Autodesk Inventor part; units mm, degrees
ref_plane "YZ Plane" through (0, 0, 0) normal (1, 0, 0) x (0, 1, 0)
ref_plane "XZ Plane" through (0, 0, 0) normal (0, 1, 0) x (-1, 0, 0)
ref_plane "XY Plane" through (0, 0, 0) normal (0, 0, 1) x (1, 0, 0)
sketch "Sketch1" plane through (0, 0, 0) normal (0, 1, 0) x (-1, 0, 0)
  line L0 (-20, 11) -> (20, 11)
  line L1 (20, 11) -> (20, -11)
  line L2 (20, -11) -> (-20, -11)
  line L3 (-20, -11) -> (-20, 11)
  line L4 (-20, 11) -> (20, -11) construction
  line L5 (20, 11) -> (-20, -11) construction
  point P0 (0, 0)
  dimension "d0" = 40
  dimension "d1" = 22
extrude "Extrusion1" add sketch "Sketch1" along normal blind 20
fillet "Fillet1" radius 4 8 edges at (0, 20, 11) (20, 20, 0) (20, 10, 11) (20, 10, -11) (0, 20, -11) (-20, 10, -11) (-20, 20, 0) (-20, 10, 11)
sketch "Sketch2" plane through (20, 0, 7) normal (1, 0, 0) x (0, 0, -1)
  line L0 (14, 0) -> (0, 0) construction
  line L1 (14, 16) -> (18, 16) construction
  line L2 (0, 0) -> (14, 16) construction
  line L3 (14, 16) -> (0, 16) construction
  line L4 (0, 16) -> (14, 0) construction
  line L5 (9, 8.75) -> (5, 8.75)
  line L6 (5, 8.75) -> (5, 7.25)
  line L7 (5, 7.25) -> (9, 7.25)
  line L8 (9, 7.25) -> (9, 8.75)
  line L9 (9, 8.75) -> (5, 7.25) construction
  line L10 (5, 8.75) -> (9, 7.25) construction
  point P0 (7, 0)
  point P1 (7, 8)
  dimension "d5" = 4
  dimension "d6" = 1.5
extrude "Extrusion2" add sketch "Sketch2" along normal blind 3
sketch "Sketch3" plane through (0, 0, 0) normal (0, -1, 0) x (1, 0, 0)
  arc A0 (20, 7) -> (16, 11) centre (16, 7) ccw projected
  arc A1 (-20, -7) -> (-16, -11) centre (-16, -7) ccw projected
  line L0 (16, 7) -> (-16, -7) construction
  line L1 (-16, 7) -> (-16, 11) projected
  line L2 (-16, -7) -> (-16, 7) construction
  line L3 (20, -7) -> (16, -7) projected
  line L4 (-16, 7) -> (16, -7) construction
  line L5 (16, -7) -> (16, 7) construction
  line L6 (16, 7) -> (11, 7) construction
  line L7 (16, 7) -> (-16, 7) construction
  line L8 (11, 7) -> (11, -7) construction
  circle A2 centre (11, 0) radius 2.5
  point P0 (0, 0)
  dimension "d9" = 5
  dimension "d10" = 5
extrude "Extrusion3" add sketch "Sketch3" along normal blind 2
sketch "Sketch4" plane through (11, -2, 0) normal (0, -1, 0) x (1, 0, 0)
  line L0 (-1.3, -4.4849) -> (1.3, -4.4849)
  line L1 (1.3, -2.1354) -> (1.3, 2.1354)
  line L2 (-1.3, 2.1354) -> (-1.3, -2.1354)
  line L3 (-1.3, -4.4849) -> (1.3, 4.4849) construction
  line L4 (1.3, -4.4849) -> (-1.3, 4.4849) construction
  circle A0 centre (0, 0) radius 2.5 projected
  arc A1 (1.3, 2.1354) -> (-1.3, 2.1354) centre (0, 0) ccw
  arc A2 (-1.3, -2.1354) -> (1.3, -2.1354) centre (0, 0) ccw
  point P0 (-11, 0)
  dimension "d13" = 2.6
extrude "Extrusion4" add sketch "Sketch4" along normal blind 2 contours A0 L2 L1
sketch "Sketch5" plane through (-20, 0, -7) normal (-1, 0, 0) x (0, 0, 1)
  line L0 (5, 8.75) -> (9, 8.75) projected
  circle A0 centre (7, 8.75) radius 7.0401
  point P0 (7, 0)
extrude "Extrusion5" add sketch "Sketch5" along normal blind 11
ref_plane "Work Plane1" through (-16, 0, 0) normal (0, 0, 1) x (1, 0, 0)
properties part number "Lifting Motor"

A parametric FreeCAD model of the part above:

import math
import FreeCAD as App
import Part
import Sketcher
from FreeCAD import Vector
Q = App.Units.Quantity


def edges_at(feature, points):
    """Names of the edges that pass closest to the given points."""
    edges = feature.Shape.Edges
    near = lambda p: min(range(len(edges)), key=lambda i: edges[i].distToShape(Part.Vertex(*p))[0])
    return sorted({f"Edge{near(p) + 1}" for p in points})


def add_polygon(sketch, points):
    """Adds a closed chain of lines whose ends are joined by coincident constraints."""
    first, n = sketch.GeometryCount, len(points)
    for a, b in zip(points, points[1:] + points[:1]):
        sketch.addGeometry(Part.LineSegment(App.Vector(*a, 0), App.Vector(*b, 0)), False)
    for i in range(n):
        sketch.addConstraint(Sketcher.Constraint("Coincident", first + i, 2, first + (i + 1) % n, 1))

doc = App.newDocument("Part")
params = doc.addObject("Spreadsheet::Sheet", "Params")
for row, (alias, value) in enumerate([
    ("sketch1_width", "40 mm"),
    ("sketch1_height", "22 mm"),
    ("pad1_length", "20 mm"),
    ("fillet_radius", "4 mm"),
    ("sketch2_height", "4 mm"),
    ("sketch2_width", "1.5 mm"),
    ("pad2_length", "3 mm"),
    ("sketch3_diameter", "5 mm"),
    ("pad3_length", "2 mm"),
    ("sketch4_radius", "2.5 mm"),
    ("pad4_length", "2 mm"),
    ("pad5_length", "11 mm"),
], start=1):
    params.set(f"A{row}", alias)
    params.set(f"B{row}", "=" + value)
    params.setAlias(f"B{row}", alias)

body = doc.addObject("PartDesign::Body", "Body")

# Sketch on XZ plane
sketch1 = doc.addObject("Sketcher::SketchObject", "Sketch")
body.addObject(sketch1)
sketch1.AttachmentSupport = (doc.XZ_Plane, [""])
sketch1.MapMode = "FlatFace"
add_polygon(sketch1, [(-20, 11), (20, 11), (20, -11), (-20, -11)])  # lines 0-3
sketch1.addConstraint([
    Sketcher.Constraint("Horizontal", 0),
    Sketcher.Constraint("Vertical", 1),
    Sketcher.Constraint("Horizontal", 2),
    Sketcher.Constraint("Vertical", 3),
    Sketcher.Constraint("Symmetric", 0, 2, 2, 2, -1, 1),
    Sketcher.Constraint("DistanceX", 0, 1, 0, 2, Q("40 mm")),
    Sketcher.Constraint("DistanceY", 1, 2, 1, 1, Q("22 mm")),
])
sketch1.setExpression("Constraints[9]", "Params.sketch1_width")
sketch1.setExpression("Constraints[10]", "Params.sketch1_height")
pad1 = doc.addObject("PartDesign::Pad", "Pad")
body.addObject(pad1)
pad1.Profile = sketch1
pad1.setExpression("Length", "Params.pad1_length")
pad1.Reversed = True
doc.recompute()

fillet = doc.addObject("PartDesign::Fillet", "Fillet")
body.addObject(fillet)
fillet.Base = (pad1, edges_at(pad1, [
    (0, 20, 11),
    (20, 20, 0),
    (20, 10, 11),
    (20, 10, -11),
    (0, 20, -11),
    (-20, 10, -11),
    (-20, 20, 0),
    (-20, 10, 11),
]))
fillet.setExpression("Radius", "Params.fillet_radius")

# Sketch on YZ plane
sketch2 = doc.addObject("Sketcher::SketchObject", "Sketch001")
body.addObject(sketch2)
sketch2.AttachmentSupport = (doc.YZ_Plane, [""])
sketch2.MapMode = "FlatFace"
sketch2.AttachmentOffset = App.Placement(Vector(0, 0, 20), App.Rotation())
add_polygon(sketch2, [(7.25, -2), (8.75, -2), (8.75, 2), (7.25, 2)])  # lines 0-3
sketch2.addConstraint([
    Sketcher.Constraint("Horizontal", 0),
    Sketcher.Constraint("Vertical", 1),
    Sketcher.Constraint("Horizontal", 2),
    Sketcher.Constraint("Vertical", 3),
    Sketcher.Constraint("DistanceY", 1, 1, 1, 2, Q("4 mm")),
    Sketcher.Constraint("DistanceX", 0, 1, 0, 2, Q("1.5 mm")),
    Sketcher.Constraint("DistanceY", 0, 2, -1, 1, Q("2 mm")),
    Sketcher.Constraint("DistanceX", -1, 1, 0, 2, Q("8.75 mm")),
])
sketch2.setExpression("Constraints[8]", "Params.sketch2_height")
sketch2.setExpression("Constraints[9]", "Params.sketch2_width")
pad2 = doc.addObject("PartDesign::Pad", "Pad001")
body.addObject(pad2)
pad2.Profile = sketch2
pad2.setExpression("Length", "Params.pad2_length")

# Sketch on XZ plane
sketch3 = doc.addObject("Sketcher::SketchObject", "Sketch002")
body.addObject(sketch3)
sketch3.AttachmentSupport = (doc.XZ_Plane, [""])
sketch3.MapMode = "FlatFace"
sketch3.addGeometry(Part.Circle(Vector(11, 0, 0), Vector(0, 0, 1), 2.5), False)
sketch3.addConstraint([
    Sketcher.Constraint("PointOnObject", 0, 3, -1),
    Sketcher.Constraint("Diameter", 0, Q("5 mm")),
    Sketcher.Constraint("DistanceX", -1, 1, 0, 3, Q("11 mm")),
])
sketch3.setExpression("Constraints[1]", "Params.sketch3_diameter")
pad3 = doc.addObject("PartDesign::Pad", "Pad002")
body.addObject(pad3)
pad3.Profile = sketch3
pad3.setExpression("Length", "Params.pad3_length")

# Sketch on XZ plane
sketch4 = doc.addObject("Sketcher::SketchObject", "Sketch003")
body.addObject(sketch4)
sketch4.AttachmentSupport = (doc.XZ_Plane, [""])
sketch4.MapMode = "FlatFace"
sketch4.AttachmentOffset = App.Placement(Vector(0, 0, 2), App.Rotation())
sketch4.addGeometry([
    Part.ArcOfCircle(Part.Circle(Vector(11, 0, 0), Vector(0, 0, 1), 2.5), math.radians(-121.332438), math.radians(-58.667562)),
    Part.LineSegment(Vector(12.3, -2.1354, 0), Vector(12.3, 2.1354, 0)),
    Part.ArcOfCircle(Part.Circle(Vector(11, 0, 0), Vector(0, 0, 1), 2.5), math.radians(58.667562), math.radians(121.332438)),
    Part.LineSegment(Vector(9.7, 2.1354, 0), Vector(9.7, -2.1354, 0)),
], False)
sketch4.addConstraint([
    Sketcher.Constraint("Coincident", 0, 2, 1, 1),
    Sketcher.Constraint("Coincident", 1, 2, 2, 1),
    Sketcher.Constraint("Coincident", 2, 2, 3, 1),
    Sketcher.Constraint("Coincident", 3, 2, 0, 1),
    Sketcher.Constraint("Vertical", 1),
    Sketcher.Constraint("Vertical", 3),
    Sketcher.Constraint("Coincident", 2, 3, 0, 3),
    Sketcher.Constraint("Equal", 0, 2),
    Sketcher.Constraint("PointOnObject", 0, 3, -1),
    Sketcher.Constraint("Horizontal", 1, 2, 2, 2),
    Sketcher.Constraint("Radius", 0, Q("2.5 mm")),
    Sketcher.Constraint("DistanceX", 2, 2, 1, 2, Q("2.6 mm")),
    Sketcher.Constraint("DistanceX", -1, 1, 0, 3, Q("11 mm")),
])
sketch4.setExpression("Constraints[10]", "Params.sketch4_radius")
pad4 = doc.addObject("PartDesign::Pad", "Pad003")
body.addObject(pad4)
pad4.Profile = sketch4
pad4.setExpression("Length", "Params.pad4_length")

# Sketch on YZ plane
sketch5 = doc.addObject("Sketcher::SketchObject", "Sketch004")
body.addObject(sketch5)
sketch5.AttachmentSupport = (doc.YZ_Plane, [""])
sketch5.MapMode = "FlatFace"
sketch5.AttachmentOffset = App.Placement(Vector(0, 0, -20), App.Rotation())
sketch5.addGeometry(Part.Circle(Vector(8.75, 0, 0), Vector(0, 0, 1), 7.0401), False)
sketch5.addConstraint([
    Sketcher.Constraint("PointOnObject", 0, 3, -1),
    Sketcher.Constraint("Diameter", 0, Q("14.0802 mm")),
    Sketcher.Constraint("DistanceX", -1, 1, 0, 3, Q("8.75 mm")),
])
pad5 = doc.addObject("PartDesign::Pad", "Pad004")
body.addObject(pad5)
pad5.Profile = sketch5
pad5.setExpression("Length", "Params.pad5_length")
pad5.Reversed = True

doc.recompute()
